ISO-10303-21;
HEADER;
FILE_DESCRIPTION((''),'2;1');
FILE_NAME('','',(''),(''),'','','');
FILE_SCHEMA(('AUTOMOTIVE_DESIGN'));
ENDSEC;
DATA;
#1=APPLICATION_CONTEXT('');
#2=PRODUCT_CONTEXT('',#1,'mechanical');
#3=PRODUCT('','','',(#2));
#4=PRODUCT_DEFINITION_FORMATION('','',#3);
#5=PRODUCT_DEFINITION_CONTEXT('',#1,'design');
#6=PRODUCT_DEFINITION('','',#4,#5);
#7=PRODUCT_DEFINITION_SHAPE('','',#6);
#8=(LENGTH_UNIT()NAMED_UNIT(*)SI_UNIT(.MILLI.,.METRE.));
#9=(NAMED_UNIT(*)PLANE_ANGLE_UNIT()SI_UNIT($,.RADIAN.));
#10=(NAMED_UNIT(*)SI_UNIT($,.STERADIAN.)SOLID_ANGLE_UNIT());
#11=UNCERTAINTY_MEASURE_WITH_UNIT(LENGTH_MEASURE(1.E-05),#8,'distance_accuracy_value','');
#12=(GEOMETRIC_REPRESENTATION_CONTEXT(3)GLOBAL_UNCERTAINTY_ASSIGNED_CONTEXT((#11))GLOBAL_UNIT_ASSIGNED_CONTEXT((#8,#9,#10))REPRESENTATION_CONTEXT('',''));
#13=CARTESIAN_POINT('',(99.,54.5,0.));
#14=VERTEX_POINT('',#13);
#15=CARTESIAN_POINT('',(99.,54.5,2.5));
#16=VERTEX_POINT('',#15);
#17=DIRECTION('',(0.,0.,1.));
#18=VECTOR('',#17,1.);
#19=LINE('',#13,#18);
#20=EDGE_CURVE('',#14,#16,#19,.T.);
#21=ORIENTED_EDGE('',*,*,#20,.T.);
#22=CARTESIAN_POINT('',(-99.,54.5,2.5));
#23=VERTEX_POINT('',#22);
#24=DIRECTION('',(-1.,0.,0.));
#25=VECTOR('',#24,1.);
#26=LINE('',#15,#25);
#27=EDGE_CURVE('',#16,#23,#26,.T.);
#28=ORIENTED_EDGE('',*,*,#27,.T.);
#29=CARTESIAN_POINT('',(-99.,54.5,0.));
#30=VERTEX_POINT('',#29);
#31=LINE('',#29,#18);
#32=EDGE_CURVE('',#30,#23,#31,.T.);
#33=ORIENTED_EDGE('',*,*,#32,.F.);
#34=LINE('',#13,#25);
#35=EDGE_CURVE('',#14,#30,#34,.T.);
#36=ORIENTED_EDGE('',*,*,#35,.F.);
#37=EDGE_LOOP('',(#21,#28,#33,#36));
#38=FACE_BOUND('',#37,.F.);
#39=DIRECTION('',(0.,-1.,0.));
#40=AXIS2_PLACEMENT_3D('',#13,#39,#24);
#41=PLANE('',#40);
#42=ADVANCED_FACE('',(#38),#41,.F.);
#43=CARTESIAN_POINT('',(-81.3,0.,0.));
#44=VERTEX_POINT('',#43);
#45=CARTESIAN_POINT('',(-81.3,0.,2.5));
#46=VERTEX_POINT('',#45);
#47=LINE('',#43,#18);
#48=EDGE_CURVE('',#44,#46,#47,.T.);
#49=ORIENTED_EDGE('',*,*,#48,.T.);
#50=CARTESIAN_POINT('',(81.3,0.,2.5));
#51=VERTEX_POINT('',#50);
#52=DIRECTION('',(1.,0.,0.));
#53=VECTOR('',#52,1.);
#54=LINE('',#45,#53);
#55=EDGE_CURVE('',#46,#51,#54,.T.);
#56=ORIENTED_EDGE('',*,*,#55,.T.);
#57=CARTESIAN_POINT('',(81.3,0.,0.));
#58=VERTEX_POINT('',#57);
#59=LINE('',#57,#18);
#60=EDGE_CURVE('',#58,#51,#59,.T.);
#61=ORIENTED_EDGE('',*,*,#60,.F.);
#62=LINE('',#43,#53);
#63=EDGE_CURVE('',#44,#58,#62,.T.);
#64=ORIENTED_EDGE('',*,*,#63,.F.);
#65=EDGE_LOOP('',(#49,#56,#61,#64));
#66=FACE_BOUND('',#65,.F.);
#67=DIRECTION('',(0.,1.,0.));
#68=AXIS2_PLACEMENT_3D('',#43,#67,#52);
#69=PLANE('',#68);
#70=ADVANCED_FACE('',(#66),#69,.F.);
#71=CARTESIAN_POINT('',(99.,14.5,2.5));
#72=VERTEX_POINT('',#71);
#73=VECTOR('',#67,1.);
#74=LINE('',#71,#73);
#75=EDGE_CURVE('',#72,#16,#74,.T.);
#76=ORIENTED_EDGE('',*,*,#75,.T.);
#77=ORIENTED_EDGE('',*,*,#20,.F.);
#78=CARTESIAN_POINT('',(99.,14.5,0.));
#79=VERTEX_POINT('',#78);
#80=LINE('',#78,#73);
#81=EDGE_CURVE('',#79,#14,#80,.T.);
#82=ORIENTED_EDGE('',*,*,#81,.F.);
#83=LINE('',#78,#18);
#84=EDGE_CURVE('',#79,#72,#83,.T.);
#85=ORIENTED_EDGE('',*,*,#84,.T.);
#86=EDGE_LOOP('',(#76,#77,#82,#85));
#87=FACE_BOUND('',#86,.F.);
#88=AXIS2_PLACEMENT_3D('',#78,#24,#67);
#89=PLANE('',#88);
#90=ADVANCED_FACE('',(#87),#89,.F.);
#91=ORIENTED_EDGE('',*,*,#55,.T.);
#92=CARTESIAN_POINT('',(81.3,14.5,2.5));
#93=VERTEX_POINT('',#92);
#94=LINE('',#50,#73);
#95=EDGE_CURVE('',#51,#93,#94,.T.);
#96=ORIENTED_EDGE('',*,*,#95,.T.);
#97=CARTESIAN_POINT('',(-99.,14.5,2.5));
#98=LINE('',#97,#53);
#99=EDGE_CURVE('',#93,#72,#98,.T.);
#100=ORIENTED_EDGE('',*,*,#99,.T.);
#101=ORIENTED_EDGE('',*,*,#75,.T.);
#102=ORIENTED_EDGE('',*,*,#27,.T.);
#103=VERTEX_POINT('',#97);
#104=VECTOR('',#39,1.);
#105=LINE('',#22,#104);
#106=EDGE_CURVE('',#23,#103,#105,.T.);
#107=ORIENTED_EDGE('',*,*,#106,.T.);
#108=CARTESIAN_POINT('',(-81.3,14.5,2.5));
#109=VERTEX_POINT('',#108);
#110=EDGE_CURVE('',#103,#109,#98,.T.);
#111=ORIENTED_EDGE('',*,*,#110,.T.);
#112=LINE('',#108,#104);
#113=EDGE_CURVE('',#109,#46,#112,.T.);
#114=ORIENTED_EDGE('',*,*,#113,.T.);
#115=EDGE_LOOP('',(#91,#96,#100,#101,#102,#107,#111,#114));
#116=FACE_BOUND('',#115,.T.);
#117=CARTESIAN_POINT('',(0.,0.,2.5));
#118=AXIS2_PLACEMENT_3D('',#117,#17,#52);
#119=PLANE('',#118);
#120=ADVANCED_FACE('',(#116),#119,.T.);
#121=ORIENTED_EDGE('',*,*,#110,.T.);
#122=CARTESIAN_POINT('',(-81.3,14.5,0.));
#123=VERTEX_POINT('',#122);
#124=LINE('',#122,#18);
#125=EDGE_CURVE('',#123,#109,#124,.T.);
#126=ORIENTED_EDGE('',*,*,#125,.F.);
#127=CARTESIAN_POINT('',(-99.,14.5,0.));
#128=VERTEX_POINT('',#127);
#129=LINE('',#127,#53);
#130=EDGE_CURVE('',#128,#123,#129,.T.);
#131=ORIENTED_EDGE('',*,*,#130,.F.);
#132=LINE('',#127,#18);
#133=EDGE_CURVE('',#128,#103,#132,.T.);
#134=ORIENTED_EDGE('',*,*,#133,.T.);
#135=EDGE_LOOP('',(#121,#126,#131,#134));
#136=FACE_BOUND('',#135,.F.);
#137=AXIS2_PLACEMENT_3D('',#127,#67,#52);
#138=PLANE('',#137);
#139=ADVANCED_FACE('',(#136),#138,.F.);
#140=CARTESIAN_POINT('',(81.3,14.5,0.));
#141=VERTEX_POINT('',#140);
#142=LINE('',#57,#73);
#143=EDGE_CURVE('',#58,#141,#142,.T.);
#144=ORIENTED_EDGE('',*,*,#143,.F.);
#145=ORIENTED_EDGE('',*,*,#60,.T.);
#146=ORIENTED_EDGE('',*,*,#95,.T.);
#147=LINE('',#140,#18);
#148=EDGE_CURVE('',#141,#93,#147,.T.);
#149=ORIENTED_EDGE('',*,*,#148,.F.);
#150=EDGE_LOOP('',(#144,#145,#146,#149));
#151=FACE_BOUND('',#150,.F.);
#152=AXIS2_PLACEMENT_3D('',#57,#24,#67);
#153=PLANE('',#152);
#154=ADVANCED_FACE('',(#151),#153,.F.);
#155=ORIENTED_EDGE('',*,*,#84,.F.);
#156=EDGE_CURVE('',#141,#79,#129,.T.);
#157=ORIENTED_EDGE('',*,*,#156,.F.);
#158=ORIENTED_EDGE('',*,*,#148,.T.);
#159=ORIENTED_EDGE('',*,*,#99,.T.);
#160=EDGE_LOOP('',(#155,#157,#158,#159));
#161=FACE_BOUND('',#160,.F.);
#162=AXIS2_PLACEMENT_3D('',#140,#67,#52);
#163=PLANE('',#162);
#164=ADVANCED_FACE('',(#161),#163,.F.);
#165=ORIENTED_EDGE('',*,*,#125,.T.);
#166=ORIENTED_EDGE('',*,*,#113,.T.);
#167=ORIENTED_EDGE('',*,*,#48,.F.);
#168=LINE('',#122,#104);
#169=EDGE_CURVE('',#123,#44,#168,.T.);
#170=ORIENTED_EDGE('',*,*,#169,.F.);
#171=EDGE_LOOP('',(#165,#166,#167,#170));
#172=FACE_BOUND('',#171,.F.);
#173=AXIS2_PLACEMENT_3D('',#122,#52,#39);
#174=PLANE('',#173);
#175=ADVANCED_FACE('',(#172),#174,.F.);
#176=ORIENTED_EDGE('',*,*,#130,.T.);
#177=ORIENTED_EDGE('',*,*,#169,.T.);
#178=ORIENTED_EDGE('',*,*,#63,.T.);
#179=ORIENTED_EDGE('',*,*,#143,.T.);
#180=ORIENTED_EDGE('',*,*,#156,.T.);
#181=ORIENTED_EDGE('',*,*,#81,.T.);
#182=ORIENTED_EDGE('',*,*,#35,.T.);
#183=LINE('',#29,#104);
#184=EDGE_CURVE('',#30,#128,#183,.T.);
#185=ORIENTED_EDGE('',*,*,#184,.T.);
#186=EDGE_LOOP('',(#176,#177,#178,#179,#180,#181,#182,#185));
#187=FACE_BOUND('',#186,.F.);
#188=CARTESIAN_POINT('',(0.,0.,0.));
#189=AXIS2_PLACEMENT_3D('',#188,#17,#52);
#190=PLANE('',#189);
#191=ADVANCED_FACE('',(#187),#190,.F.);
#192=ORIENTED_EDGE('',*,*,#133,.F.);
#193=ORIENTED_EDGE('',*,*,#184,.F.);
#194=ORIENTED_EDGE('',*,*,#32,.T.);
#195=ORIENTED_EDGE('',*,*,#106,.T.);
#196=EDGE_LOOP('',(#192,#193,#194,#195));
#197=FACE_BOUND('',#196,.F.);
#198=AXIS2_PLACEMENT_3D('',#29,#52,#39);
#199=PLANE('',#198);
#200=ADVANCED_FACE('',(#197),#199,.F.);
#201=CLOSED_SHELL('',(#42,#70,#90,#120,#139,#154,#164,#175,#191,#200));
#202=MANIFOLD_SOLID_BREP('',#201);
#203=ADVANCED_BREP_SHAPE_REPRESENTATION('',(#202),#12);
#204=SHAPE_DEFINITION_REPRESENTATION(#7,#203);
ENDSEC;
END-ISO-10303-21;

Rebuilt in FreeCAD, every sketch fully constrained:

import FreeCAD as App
import Part
import Sketcher
Q = App.Units.Quantity


def add_polygon(sketch, points):
    """Adds a closed chain of lines whose ends are joined by coincident constraints."""
    first, n = sketch.GeometryCount, len(points)
    for a, b in zip(points, points[1:] + points[:1]):
        sketch.addGeometry(Part.LineSegment(App.Vector(*a, 0), App.Vector(*b, 0)), False)
    for i in range(n):
        sketch.addConstraint(Sketcher.Constraint("Coincident", first + i, 2, first + (i + 1) % n, 1))

doc = App.newDocument("Part")
body = doc.addObject("PartDesign::Body", "Body")

# Sketch on XY plane
sketch1 = body.newObject("Sketcher::SketchObject", "Sketch")
sketch1.AttachmentSupport = (doc.getObject("XY_Plane"), [""])
sketch1.MapMode = "FlatFace"
add_polygon(sketch1, [(-81.3, 14.5), (-81.3, 0), (81.3, 0), (81.3, 14.5), (99, 14.5), (99, 54.5), (-99, 54.5), (-99, 14.5)])  # lines 0-7
sketch1.addConstraint([
    Sketcher.Constraint("Vertical", 0),
    Sketcher.Constraint("Horizontal", 1),
    Sketcher.Constraint("Vertical", 2),
    Sketcher.Constraint("Horizontal", 3),
    Sketcher.Constraint("Vertical", 4),
    Sketcher.Constraint("Horizontal", 5),
    Sketcher.Constraint("Vertical", 6),
    Sketcher.Constraint("Horizontal", 7),
    Sketcher.Constraint("Symmetric", 0, 2, 1, 2, -1, 1),
    Sketcher.Constraint("Symmetric", 3, 2, 6, 2, -2),
    Sketcher.Constraint("DistanceX", 5, 2, 5, 1, Q("198 mm")),
    Sketcher.Constraint("DistanceY", 4, 1, 4, 2, Q("40 mm")),
    Sketcher.Constraint("DistanceX", 1, 1, 1, 2, Q("162.6 mm")),
    Sketcher.Constraint("DistanceY", 0, 2, 0, 1, Q("14.5 mm")),
])
pad1 = body.newObject("PartDesign::Pad", "Pad")
pad1.Profile = sketch1
pad1.Length = 2.5

doc.recompute()
